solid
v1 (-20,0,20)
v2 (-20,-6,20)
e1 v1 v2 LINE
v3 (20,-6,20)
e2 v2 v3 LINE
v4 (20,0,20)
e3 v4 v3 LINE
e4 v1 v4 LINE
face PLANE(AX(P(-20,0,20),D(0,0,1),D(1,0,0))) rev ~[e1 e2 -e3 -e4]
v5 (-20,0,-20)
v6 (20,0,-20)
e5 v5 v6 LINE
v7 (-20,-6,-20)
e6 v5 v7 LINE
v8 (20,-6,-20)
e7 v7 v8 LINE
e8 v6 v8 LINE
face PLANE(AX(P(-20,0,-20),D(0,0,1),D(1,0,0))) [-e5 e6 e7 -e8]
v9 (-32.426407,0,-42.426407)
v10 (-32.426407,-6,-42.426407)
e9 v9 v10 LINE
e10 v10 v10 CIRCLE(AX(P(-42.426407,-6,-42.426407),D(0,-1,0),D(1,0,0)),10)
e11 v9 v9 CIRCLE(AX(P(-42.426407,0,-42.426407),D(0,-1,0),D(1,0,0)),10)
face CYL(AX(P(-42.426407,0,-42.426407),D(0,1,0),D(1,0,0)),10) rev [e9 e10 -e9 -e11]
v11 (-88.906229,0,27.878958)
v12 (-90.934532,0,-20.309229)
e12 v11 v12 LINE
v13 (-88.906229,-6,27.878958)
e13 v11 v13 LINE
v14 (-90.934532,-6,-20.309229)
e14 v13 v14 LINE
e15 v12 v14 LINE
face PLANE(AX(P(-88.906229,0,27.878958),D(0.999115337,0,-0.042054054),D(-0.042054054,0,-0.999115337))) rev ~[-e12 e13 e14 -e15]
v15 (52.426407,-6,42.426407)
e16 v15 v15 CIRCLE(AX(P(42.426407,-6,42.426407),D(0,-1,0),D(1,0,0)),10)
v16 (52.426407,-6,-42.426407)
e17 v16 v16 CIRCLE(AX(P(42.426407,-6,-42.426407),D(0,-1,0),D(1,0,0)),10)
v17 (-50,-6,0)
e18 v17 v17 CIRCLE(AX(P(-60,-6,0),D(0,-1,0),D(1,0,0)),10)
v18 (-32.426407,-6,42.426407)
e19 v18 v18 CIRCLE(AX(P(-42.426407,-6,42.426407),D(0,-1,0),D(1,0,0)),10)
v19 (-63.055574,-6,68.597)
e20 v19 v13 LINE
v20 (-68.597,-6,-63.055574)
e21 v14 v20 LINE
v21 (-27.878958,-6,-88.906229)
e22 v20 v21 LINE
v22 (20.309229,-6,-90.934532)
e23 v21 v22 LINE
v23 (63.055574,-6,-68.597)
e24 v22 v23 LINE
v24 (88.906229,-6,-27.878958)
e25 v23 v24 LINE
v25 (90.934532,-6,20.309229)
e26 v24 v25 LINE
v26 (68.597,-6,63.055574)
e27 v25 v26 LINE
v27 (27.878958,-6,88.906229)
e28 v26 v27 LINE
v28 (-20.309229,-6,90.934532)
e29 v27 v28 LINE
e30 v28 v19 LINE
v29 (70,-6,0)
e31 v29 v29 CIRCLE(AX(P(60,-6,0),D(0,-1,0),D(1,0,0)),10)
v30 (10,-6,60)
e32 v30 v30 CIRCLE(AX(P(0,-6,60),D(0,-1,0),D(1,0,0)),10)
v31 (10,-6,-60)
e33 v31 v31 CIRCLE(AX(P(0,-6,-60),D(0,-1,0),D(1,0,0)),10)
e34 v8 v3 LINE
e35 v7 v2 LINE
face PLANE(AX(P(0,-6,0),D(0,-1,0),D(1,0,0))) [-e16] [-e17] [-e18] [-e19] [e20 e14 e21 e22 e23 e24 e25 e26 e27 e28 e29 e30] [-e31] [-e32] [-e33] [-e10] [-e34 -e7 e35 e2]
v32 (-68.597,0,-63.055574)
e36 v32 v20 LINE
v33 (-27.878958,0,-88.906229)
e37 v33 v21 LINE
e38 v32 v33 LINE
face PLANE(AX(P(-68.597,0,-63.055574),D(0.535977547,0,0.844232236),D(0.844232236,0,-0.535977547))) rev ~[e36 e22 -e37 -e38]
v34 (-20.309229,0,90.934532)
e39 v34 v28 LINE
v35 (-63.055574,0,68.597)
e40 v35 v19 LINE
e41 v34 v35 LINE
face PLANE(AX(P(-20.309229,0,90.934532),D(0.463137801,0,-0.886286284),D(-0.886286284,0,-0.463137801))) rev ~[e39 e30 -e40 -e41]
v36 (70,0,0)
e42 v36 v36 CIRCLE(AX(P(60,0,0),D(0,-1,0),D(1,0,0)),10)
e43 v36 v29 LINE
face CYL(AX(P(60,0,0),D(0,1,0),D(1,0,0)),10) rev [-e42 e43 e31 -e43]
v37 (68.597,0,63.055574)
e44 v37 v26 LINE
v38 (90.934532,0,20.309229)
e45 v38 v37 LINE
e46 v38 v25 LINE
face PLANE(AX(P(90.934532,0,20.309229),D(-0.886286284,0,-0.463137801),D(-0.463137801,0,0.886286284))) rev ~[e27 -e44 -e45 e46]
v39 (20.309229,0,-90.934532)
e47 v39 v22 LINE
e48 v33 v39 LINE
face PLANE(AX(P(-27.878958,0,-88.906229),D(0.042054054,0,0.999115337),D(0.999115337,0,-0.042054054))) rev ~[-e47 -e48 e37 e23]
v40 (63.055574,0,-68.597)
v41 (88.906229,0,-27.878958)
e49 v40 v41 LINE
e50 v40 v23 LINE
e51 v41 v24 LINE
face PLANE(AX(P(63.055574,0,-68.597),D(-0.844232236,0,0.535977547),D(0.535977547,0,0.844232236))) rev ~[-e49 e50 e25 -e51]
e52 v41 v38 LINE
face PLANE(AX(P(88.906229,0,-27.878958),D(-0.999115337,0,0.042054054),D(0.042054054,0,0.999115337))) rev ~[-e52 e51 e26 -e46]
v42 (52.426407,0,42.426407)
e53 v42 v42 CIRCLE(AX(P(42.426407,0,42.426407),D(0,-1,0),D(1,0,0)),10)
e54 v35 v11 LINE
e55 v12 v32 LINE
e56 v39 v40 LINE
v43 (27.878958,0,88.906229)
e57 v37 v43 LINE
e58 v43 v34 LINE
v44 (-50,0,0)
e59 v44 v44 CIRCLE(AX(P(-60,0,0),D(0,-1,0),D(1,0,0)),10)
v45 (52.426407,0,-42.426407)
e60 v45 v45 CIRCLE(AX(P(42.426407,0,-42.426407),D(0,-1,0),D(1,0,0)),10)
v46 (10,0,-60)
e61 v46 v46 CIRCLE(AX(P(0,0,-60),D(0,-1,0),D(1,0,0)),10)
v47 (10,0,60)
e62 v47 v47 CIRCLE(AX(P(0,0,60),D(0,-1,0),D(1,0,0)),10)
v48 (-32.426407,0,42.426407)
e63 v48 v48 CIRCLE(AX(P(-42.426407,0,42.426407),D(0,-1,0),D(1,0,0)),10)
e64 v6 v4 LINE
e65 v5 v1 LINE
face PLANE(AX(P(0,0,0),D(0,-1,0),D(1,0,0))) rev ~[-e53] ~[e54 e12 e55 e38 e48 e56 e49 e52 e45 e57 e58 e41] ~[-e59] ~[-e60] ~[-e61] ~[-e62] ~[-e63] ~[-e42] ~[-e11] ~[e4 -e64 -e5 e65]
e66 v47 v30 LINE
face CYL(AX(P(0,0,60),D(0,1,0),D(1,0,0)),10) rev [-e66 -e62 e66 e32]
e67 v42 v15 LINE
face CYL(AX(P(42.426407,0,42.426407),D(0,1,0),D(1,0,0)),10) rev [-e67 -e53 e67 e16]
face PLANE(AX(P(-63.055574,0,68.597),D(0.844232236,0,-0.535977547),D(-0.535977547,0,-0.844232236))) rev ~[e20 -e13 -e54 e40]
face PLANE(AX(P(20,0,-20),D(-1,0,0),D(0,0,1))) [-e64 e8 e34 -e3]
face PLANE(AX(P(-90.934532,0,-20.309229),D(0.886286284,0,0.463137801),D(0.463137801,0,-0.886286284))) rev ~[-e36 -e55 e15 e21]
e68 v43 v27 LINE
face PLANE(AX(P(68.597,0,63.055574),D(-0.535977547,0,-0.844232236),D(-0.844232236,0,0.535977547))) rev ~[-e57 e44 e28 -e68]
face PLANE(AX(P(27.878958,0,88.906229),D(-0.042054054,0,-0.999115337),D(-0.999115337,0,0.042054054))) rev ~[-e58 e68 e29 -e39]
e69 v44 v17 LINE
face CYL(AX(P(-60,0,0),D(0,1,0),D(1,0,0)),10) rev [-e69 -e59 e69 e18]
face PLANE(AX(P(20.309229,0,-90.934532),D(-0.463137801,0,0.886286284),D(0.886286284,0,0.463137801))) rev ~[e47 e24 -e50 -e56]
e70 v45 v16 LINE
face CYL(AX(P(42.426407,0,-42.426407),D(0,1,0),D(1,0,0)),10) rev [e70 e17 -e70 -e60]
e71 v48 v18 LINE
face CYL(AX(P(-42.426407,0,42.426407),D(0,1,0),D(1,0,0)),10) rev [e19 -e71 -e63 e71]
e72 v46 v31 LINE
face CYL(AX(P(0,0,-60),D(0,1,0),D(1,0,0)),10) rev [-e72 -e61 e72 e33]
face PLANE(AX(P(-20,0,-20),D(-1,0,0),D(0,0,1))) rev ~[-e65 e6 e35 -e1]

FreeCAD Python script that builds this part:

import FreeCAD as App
import Part
import Sketcher
Q = App.Units.Quantity


def add_polygon(sketch, points):
    """Adds a closed chain of lines whose ends are joined by coincident constraints."""
    first, n = sketch.GeometryCount, len(points)
    for a, b in zip(points, points[1:] + points[:1]):
        sketch.addGeometry(Part.LineSegment(App.Vector(*a, 0), App.Vector(*b, 0)), False)
    for i in range(n):
        sketch.addConstraint(Sketcher.Constraint("Coincident", first + i, 2, first + (i + 1) % n, 1))

doc = App.newDocument("Part")
body = doc.addObject("PartDesign::Body", "Body")

# Sketch on XZ plane
sketch1 = body.newObject("Sketcher::SketchObject", "Sketch")
sketch1.AttachmentSupport = (doc.getObject("XZ_Plane"), [""])
sketch1.MapMode = "FlatFace"
add_polygon(sketch1, [(20, -91), (63, -69), (89, -28), (91, 20), (69, 63), (28, 89), (-20, 91), (-63, 69), (-89, 28), (-91, -20), (-69, -63), (-28, -89)])  # lines 0-11
sketch1.addGeometry(Part.Circle(App.Vector(-42, -42, 0), App.Vector(0, 0, 1), 10), False)  # 12
sketch1.addGeometry(Part.Circle(App.Vector(0, -60, 0), App.Vector(0, 0, 1), 10), False)  # 13
sketch1.addGeometry(Part.Circle(App.Vector(42, -42, 0), App.Vector(0, 0, 1), 10), False)  # 14
sketch1.addGeometry(Part.Circle(App.Vector(-60, 0, 0), App.Vector(0, 0, 1), 10), False)  # 15
sketch1.addGeometry(Part.Circle(App.Vector(-42, 42, 0), App.Vector(0, 0, 1), 10), False)  # 16
add_polygon(sketch1, [(20, -20), (-20, -20), (-20, 20), (20, 20)])  # lines 17-20
sketch1.addGeometry(Part.Circle(App.Vector(60, 0, 0), App.Vector(0, 0, 1), 10), False)  # 21
sketch1.addGeometry(Part.Circle(App.Vector(0, 60, 0), App.Vector(0, 0, 1), 10), False)  # 22
sketch1.addGeometry(Part.Circle(App.Vector(42, 42, 0), App.Vector(0, 0, 1), 10), False)  # 23
sketch1.addConstraint(Sketcher.Constraint("Horizontal", 17))
sketch1.addConstraint(Sketcher.Constraint("Vertical", 18))
sketch1.addConstraint(Sketcher.Constraint("Horizontal", 19))
sketch1.addConstraint(Sketcher.Constraint("Vertical", 20))
sketch1.addConstraint(Sketcher.Constraint("Equal", 12, 13))
sketch1.addConstraint(Sketcher.Constraint("Equal", 13, 14))
sketch1.addConstraint(Sketcher.Constraint("Equal", 14, 15))
sketch1.addConstraint(Sketcher.Constraint("Equal", 15, 16))
sketch1.addConstraint(Sketcher.Constraint("Equal", 16, 21))
sketch1.addConstraint(Sketcher.Constraint("Equal", 21, 22))
sketch1.addConstraint(Sketcher.Constraint("Equal", 22, 23))
sketch1.addConstraint(Sketcher.Constraint("Symmetric", 14, 3, 16, 3, -1, 1))
sketch1.addConstraint(Sketcher.Constraint("Symmetric", 15, 3, 21, 3, -1, 1))
sketch1.addConstraint(Sketcher.Constraint("Symmetric", 13, 3, 22, 3, -1, 1))
sketch1.addConstraint(Sketcher.Constraint("Symmetric", 12, 3, 23, 3, -1, 1))
sketch1.addConstraint(Sketcher.Constraint("Symmetric", 0, 2, 6, 2, -1, 1))
sketch1.addConstraint(Sketcher.Constraint("Symmetric", 1, 2, 7, 2, -1, 1))
sketch1.addConstraint(Sketcher.Constraint("Symmetric", 2, 2, 8, 2, -1, 1))
sketch1.addConstraint(Sketcher.Constraint("Symmetric", 3, 2, 9, 2, -1, 1))
sketch1.addConstraint(Sketcher.Constraint("Symmetric", 4, 2, 10, 2, -1, 1))
sketch1.addConstraint(Sketcher.Constraint("Symmetric", 5, 2, 11, 2, -1, 1))
sketch1.addConstraint(Sketcher.Constraint("Symmetric", 17, 2, 19, 2, -1, 1))
sketch1.addConstraint(Sketcher.Constraint("Symmetric", 12, 3, 14, 3, -2))
sketch1.addConstraint(Sketcher.Constraint("PointOnObject", 13, 3, -2))
sketch1.addConstraint(Sketcher.Constraint("PointOnObject", 15, 3, -1))
sketch1.addConstraint(Sketcher.Constraint("Perpendicular", 0, 3))
sketch1.addConstraint(Sketcher.Constraint("Perpendicular", 1, 4))
sketch1.addConstraint(Sketcher.Constraint("Perpendicular", 2, 5))
sketch1.addConstraint(Sketcher.Constraint("Equal", 19, 18))
sketch1.addConstraint(Sketcher.Constraint("Equal", 0, 1))
sketch1.addConstraint(Sketcher.Constraint("Equal", 1, 2))
sketch1.addConstraint(Sketcher.Constraint("Equal", 2, 3))
sketch1.addConstraint(Sketcher.Constraint("Equal", 3, 4))
sketch1.addConstraint(Sketcher.Constraint("Equal", 4, 5))
sketch1.addConstraint(Sketcher.Constraint("Diameter", 12, Q("20 mm")))
sketch1.addConstraint(Sketcher.Constraint("DistanceX", 17, 2, 17, 1, Q("40 mm")))
sketch1.addConstraint(Sketcher.Constraint("DistanceY", 13, 3, -1, 1, Q("60 mm")))
sketch1.addConstraint(Sketcher.Constraint("DistanceX", 15, 3, -1, 1, Q("60 mm")))
sketch1.addConstraint(Sketcher.Constraint("DistanceY", 0, 2, -1, 1, Q("68.597 mm")))
sketch1.addConstraint(Sketcher.Constraint("DistanceY", 2, 2, 4, 2, Q("68.597 mm")))
sketch1.addConstraint(Sketcher.Constraint("DistanceX", -1, 1, 1, 2, Q("88.906229 mm")))
sketch1.addConstraint(Sketcher.Constraint("DistanceY", 1, 2, -1, 1, Q("27.878958 mm")))
sketch1.addConstraint(Sketcher.Constraint("DistanceX", 12, 3, 0, 2, Q("105.481981 mm")))
sketch1.addConstraint(Sketcher.Constraint("DistanceY", 14, 3, 1, 2, Q("14.547449 mm")))
pad1 = body.newObject("PartDesign::Pad", "Pad")
pad1.Profile = sketch1
pad1.Length = 6

doc.recompute()
